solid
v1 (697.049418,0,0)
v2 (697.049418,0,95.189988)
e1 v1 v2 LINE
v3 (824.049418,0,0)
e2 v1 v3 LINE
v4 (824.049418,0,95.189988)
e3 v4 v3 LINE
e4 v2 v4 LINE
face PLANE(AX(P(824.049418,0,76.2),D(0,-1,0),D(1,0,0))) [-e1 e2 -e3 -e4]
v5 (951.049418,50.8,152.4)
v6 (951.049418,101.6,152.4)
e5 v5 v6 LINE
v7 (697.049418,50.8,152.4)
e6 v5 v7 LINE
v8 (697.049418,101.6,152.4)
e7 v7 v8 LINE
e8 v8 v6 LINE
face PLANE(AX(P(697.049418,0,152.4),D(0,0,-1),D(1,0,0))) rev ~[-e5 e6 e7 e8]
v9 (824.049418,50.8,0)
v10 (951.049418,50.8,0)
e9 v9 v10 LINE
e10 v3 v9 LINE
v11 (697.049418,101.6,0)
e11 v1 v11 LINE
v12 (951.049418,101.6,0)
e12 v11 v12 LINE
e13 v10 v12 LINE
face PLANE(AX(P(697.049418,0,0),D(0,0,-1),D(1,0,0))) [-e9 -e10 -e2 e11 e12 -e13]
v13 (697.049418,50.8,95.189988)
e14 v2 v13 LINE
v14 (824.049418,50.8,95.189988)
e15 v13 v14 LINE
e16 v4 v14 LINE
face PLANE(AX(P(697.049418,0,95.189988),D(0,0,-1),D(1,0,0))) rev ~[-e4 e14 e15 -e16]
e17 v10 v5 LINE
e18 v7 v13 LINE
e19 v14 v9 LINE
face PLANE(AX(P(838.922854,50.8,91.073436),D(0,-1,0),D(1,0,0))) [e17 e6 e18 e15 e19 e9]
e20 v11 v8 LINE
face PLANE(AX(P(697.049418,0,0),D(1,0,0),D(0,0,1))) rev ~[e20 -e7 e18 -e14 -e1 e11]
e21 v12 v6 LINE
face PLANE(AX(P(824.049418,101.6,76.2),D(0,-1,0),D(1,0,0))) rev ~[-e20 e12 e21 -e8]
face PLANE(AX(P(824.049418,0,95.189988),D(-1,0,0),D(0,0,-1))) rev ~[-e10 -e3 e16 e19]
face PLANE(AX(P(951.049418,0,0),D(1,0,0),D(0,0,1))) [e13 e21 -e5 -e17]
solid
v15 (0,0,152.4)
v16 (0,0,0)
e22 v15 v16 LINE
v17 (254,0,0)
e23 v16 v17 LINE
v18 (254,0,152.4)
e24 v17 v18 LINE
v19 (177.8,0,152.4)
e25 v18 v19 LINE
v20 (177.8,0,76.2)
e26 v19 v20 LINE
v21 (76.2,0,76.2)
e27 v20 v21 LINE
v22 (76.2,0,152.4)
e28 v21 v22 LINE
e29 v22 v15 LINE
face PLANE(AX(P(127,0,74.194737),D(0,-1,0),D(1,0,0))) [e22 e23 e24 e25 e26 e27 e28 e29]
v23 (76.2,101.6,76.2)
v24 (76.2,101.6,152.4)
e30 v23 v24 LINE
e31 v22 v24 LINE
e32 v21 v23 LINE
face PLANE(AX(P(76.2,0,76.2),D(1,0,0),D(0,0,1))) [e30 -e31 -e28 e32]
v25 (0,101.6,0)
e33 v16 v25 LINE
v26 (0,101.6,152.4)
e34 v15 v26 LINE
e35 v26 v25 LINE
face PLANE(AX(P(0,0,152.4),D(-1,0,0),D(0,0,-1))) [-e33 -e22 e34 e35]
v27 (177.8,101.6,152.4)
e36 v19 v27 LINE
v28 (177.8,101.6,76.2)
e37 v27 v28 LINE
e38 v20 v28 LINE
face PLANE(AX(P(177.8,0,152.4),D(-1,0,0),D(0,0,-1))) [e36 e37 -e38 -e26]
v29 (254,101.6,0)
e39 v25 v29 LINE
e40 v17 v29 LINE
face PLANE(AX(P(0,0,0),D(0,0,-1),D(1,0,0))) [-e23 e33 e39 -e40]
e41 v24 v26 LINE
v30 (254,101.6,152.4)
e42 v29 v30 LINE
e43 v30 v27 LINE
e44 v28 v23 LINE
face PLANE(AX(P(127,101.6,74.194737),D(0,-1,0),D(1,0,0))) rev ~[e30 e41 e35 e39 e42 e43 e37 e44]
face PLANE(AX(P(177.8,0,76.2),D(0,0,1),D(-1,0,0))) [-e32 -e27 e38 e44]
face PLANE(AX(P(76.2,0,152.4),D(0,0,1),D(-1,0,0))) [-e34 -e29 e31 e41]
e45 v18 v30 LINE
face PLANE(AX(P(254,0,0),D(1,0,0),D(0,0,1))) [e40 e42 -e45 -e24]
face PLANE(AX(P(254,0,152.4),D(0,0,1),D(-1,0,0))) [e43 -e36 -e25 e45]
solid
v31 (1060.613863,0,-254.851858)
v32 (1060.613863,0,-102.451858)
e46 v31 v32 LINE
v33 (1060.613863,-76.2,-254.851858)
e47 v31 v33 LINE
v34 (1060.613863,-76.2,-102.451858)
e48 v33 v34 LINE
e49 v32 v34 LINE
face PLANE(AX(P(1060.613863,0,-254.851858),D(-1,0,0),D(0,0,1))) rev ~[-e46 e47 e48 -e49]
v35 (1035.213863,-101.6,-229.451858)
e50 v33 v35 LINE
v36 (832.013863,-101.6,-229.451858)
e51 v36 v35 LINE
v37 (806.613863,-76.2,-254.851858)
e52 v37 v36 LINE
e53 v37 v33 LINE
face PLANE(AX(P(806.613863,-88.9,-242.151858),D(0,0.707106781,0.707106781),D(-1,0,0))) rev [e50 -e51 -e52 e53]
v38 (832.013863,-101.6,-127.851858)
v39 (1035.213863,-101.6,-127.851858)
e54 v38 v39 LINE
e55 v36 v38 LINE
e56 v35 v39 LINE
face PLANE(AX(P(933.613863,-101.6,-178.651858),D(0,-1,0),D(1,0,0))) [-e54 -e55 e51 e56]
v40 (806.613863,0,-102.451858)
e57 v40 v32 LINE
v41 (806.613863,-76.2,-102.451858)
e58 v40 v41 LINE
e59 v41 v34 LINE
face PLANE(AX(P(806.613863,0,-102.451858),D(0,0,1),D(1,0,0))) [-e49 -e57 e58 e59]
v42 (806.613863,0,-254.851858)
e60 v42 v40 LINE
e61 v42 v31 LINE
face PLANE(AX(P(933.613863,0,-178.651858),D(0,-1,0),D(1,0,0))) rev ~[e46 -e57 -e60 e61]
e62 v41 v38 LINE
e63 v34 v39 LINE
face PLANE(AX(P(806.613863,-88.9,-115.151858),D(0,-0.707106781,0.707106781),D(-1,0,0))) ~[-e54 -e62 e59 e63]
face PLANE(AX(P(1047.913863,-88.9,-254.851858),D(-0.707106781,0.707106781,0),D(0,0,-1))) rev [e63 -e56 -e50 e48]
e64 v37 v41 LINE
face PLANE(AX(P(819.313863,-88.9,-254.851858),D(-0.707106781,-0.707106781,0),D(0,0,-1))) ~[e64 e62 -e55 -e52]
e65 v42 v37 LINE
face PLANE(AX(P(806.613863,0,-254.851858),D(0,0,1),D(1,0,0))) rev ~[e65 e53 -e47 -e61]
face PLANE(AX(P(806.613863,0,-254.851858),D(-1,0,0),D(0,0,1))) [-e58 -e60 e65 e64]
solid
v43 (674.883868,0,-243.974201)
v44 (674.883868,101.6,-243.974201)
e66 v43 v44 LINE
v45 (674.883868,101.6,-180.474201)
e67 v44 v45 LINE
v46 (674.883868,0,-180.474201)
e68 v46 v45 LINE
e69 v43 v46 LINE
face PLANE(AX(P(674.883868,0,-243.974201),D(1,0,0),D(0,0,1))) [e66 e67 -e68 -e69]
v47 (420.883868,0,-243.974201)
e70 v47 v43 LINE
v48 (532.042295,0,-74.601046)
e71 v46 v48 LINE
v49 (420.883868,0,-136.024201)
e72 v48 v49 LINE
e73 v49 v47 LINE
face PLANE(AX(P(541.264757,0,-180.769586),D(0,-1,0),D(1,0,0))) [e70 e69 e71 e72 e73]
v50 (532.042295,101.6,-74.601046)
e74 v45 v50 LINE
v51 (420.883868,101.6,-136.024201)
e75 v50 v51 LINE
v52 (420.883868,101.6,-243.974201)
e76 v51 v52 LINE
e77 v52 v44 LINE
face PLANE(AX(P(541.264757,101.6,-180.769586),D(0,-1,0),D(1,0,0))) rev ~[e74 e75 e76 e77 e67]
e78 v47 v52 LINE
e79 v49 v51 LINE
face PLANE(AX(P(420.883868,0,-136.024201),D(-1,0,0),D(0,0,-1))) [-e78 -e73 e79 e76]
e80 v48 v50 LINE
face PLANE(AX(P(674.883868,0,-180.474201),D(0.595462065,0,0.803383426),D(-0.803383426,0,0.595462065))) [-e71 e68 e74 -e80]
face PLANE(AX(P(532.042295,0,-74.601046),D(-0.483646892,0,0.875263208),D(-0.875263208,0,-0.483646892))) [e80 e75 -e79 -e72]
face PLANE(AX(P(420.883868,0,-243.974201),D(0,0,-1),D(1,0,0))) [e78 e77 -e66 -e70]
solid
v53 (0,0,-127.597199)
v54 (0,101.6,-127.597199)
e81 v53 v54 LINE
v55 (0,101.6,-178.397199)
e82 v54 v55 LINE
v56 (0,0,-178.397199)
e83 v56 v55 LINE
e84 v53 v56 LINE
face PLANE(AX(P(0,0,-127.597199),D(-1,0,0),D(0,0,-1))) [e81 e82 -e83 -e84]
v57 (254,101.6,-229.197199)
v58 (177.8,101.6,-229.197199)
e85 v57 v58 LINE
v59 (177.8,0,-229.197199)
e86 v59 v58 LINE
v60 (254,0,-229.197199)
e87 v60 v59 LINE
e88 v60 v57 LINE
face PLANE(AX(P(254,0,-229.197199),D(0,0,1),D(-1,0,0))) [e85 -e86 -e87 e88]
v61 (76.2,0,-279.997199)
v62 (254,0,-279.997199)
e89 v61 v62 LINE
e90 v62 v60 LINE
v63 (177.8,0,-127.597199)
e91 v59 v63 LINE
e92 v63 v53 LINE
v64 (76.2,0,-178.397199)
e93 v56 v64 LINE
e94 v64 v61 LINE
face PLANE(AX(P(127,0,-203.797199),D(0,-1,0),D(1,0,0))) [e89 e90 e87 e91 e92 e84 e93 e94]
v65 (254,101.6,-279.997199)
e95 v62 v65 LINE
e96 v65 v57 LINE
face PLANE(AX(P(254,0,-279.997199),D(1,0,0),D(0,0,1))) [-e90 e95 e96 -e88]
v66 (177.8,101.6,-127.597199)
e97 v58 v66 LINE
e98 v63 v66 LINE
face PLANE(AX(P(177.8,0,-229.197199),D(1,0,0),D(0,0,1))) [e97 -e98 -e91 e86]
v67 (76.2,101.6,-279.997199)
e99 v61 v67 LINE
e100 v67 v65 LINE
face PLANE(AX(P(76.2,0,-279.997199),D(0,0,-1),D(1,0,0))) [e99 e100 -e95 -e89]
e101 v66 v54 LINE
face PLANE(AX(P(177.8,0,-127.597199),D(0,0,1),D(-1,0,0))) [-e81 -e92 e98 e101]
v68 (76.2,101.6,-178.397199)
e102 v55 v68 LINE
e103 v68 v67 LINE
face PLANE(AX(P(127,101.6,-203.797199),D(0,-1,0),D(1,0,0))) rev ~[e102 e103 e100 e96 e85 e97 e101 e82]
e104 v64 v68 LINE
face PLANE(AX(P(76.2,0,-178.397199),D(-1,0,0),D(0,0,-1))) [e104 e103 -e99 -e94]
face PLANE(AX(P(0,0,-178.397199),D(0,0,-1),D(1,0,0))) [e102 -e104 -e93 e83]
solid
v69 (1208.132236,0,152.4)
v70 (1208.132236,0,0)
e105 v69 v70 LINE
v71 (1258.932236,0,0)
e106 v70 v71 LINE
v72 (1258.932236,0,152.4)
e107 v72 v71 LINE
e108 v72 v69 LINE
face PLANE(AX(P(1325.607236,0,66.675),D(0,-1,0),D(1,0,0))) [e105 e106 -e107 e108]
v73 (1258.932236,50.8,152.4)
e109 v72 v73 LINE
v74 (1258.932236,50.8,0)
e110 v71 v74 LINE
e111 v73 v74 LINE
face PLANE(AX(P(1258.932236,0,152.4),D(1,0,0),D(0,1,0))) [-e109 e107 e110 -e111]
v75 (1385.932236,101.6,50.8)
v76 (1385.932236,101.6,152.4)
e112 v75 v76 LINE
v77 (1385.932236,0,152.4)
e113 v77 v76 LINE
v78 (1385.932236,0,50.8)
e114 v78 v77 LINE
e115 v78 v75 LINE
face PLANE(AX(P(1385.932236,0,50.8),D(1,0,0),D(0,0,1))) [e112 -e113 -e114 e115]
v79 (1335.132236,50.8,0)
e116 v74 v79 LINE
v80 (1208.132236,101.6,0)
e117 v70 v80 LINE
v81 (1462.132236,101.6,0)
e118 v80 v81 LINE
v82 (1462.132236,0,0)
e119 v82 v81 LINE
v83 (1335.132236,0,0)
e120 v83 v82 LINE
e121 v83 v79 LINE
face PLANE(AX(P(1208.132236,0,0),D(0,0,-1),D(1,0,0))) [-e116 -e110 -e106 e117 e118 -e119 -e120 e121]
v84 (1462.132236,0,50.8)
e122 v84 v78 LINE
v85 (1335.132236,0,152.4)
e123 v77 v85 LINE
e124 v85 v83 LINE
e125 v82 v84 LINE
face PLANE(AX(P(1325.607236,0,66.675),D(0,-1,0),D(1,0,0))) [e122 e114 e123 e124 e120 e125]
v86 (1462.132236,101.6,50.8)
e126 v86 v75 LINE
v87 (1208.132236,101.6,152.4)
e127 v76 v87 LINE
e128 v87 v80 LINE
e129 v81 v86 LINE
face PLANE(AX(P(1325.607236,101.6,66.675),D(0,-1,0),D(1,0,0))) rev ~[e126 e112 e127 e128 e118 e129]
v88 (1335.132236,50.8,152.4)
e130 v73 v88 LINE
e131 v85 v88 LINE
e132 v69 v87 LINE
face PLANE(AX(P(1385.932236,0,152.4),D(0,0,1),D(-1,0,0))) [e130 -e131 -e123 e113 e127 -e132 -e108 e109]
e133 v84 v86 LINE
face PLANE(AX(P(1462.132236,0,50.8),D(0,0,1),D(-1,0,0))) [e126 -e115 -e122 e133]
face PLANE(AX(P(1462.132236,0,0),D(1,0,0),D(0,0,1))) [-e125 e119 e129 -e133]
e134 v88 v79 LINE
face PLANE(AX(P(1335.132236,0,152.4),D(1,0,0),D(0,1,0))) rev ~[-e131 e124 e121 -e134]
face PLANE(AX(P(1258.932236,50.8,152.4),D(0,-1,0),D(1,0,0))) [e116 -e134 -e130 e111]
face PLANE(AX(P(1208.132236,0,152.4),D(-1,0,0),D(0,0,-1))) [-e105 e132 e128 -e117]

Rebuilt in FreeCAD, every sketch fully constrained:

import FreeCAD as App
import Part
import Sketcher
from FreeCAD import Vector
Q = App.Units.Quantity


def edges_at(feature, points):
    """Names of the edges that pass closest to the given points."""
    edges = feature.Shape.Edges
    near = lambda p: min(range(len(edges)), key=lambda i: edges[i].distToShape(Part.Vertex(*p))[0])
    return sorted({f"Edge{near(p) + 1}" for p in points})


def add_polygon(sketch, points):
    """Adds a closed chain of lines whose ends are joined by coincident constraints."""
    first, n = sketch.GeometryCount, len(points)
    for a, b in zip(points, points[1:] + points[:1]):
        sketch.addGeometry(Part.LineSegment(App.Vector(*a, 0), App.Vector(*b, 0)), False)
    for i in range(n):
        sketch.addConstraint(Sketcher.Constraint("Coincident", first + i, 2, first + (i + 1) % n, 1))

doc = App.newDocument("Part")
body = doc.addObject("PartDesign::Body", "Body")

# Sketch on XZ plane
sketch1 = body.newObject("Sketcher::SketchObject", "Sketch")
sketch1.AttachmentSupport = (doc.getObject("XZ_Plane"), [""])
sketch1.MapMode = "FlatFace"
add_polygon(sketch1, [(0, 152), (0, 0), (254, 0), (254, 152), (178, 152), (178, 76), (76, 76), (76, 152)])  # lines 0-7
sketch1.addConstraint([
    Sketcher.Constraint("Vertical", 0),
    Sketcher.Constraint("Horizontal", 1),
    Sketcher.Constraint("Vertical", 2),
    Sketcher.Constraint("Horizontal", 3),
    Sketcher.Constraint("Vertical", 4),
    Sketcher.Constraint("Horizontal", 5),
    Sketcher.Constraint("Vertical", 6),
    Sketcher.Constraint("Horizontal", 7),
    Sketcher.Constraint("Coincident", 0, 2, -1, 1),
    Sketcher.Constraint("Horizontal", 3, 2, 6, 2),
    Sketcher.Constraint("Equal", 3, 7),
    Sketcher.Constraint("Equal", 7, 4),
    Sketcher.Constraint("DistanceX", 1, 1, 1, 2, Q("10 in")),
    Sketcher.Constraint("DistanceX", 3, 2, 3, 1, Q("3 in")),
    Sketcher.Constraint("DistanceY", 0, 2, 0, 1, Q("6 in")),
])
pad1 = body.newObject("PartDesign::Pad", "Pad")
pad1.Profile = sketch1
pad1.Length = Q("4 in")
pad1.Reversed = True
body2 = doc.addObject("PartDesign::Body", "Body001")

# Sketch on XZ plane
sketch2 = body2.newObject("Sketcher::SketchObject", "Sketch001")
sketch2.AttachmentSupport = (doc.getObject("XZ_Plane001"), [""])
sketch2.MapMode = "FlatFace"
add_polygon(sketch2, [(697, 152), (697, 0), (951, 0), (951, 152)])  # lines 0-3
sketch2.addConstraint([
    Sketcher.Constraint("Vertical", 0),
    Sketcher.Constraint("Horizontal", 1),
    Sketcher.Constraint("Vertical", 2),
    Sketcher.Constraint("Horizontal", 3),
    Sketcher.Constraint("PointOnObject", 0, 2, -1),
    Sketcher.Constraint("DistanceX", 1, 1, 1, 2, Q("10 in")),
    Sketcher.Constraint("DistanceY", 0, 2, 0, 1, Q("6 in")),
    Sketcher.Constraint("DistanceX", -1, 1, 0, 2, 697.049418),
])
pad2 = body2.newObject("PartDesign::Pad", "Pad001")
pad2.Profile = sketch2
pad2.Length = Q("4 in")
pad2.Reversed = True

# Sketch on XZ plane
sketch3 = body2.newObject("Sketcher::SketchObject", "Sketch002")
sketch3.AttachmentSupport = (doc.getObject("XZ_Plane001"), [""])
sketch3.MapMode = "FlatFace"
add_polygon(sketch3, [(824, 0), (951, 0), (951, 152), (697, 152), (697, 95), (824, 95)])  # lines 0-5
sketch3.addConstraint([
    Sketcher.Constraint("Horizontal", 0),
    Sketcher.Constraint("Vertical", 1),
    Sketcher.Constraint("Horizontal", 2),
    Sketcher.Constraint("Vertical", 3),
    Sketcher.Constraint("Horizontal", 4),
    Sketcher.Constraint("Vertical", 5),
    Sketcher.Constraint("PointOnObject", 0, 2, -1),
    Sketcher.Constraint("Equal", 0, 4),
    Sketcher.Constraint("DistanceX", 0, 1, 0, 2, Q("5 in")),
    Sketcher.Constraint("DistanceY", 1, 1, 1, 2, Q("6 in")),
    Sketcher.Constraint("DistanceY", 5, 2, 5, 1, 95.189988),
    Sketcher.Constraint("DistanceX", -1, 1, 0, 2, 951.049418),
])
pocket1 = body2.newObject("PartDesign::Pocket", "Pocket")
pocket1.Profile = sketch3
pocket1.Length = Q("2 in")
body3 = doc.addObject("PartDesign::Body", "Body002")

# Sketch on XZ plane
sketch4 = body3.newObject("Sketcher::SketchObject", "Sketch003")
sketch4.AttachmentSupport = (doc.getObject("XZ_Plane002"), [""])
sketch4.MapMode = "FlatFace"
add_polygon(sketch4, [(1208, 152), (1208, 0), (1462, 0), (1462, 51), (1386, 51), (1386, 152)])  # lines 0-5
sketch4.addConstraint([
    Sketcher.Constraint("Vertical", 0),
    Sketcher.Constraint("Horizontal", 1),
    Sketcher.Constraint("Vertical", 2),
    Sketcher.Constraint("Horizontal", 3),
    Sketcher.Constraint("Vertical", 4),
    Sketcher.Constraint("Horizontal", 5),
    Sketcher.Constraint("PointOnObject", 0, 2, -1),
    Sketcher.Constraint("DistanceX", 1, 1, 1, 2, Q("10 in")),
    Sketcher.Constraint("DistanceX", 3, 2, 3, 1, Q("3 in")),
    Sketcher.Constraint("DistanceY", 0, 2, 0, 1, Q("6 in")),
    Sketcher.Constraint("DistanceY", 2, 1, 2, 2, Q("2 in")),
    Sketcher.Constraint("DistanceX", -1, 1, 0, 2, 1208.132236),
])
pad3 = body3.newObject("PartDesign::Pad", "Pad002")
pad3.Profile = sketch4
pad3.Length = Q("4 in")
pad3.Reversed = True

# Sketch on XY plane
sketch5 = body3.newObject("Sketcher::SketchObject", "Sketch004")
sketch5.AttachmentSupport = (doc.getObject("XY_Plane002"), [""])
sketch5.MapMode = "FlatFace"
sketch5.AttachmentOffset = App.Placement(Vector(0, 0, 6 * 25.4), App.Rotation())
add_polygon(sketch5, [(1259, 51), (1259, 0), (1335, 0), (1335, 51)])  # lines 0-3
sketch5.addConstraint([
    Sketcher.Constraint("Vertical", 0),
    Sketcher.Constraint("Horizontal", 1),
    Sketcher.Constraint("Vertical", 2),
    Sketcher.Constraint("Horizontal", 3),
    Sketcher.Constraint("PointOnObject", 0, 2, -1),
    Sketcher.Constraint("DistanceX", 1, 1, 1, 2, Q("3 in")),
    Sketcher.Constraint("DistanceY", 0, 2, 0, 1, Q("2 in")),
    Sketcher.Constraint("DistanceX", -1, 1, 0, 2, 1258.932236),
])
pocket2 = body3.newObject("PartDesign::Pocket", "Pocket001")
pocket2.Profile = sketch5
pocket2.Length = Q("6 in")
body4 = doc.addObject("PartDesign::Body", "Body003")

# Sketch on XZ plane
sketch6 = body4.newObject("Sketcher::SketchObject", "Sketch005")
sketch6.AttachmentSupport = (doc.getObject("XZ_Plane003"), [""])
sketch6.MapMode = "FlatFace"
add_polygon(sketch6, [(0, -128), (0, -178), (76, -178), (76, -280), (254, -280), (254, -229), (178, -229), (178, -128)])  # lines 0-7
sketch6.addConstraint([
    Sketcher.Constraint("Vertical", 0),
    Sketcher.Constraint("Horizontal", 1),
    Sketcher.Constraint("Vertical", 2),
    Sketcher.Constraint("Horizontal", 3),
    Sketcher.Constraint("Vertical", 4),
    Sketcher.Constraint("Horizontal", 5),
    Sketcher.Constraint("Vertical", 6),
    Sketcher.Constraint("Horizontal", 7),
    Sketcher.Constraint("PointOnObject", 0, 2, -2),
    Sketcher.Constraint("Equal", 1, 5),
    Sketcher.Constraint("Equal", 0, 4),
    Sketcher.Constraint("DistanceX", 1, 1, 1, 2, Q("3 in")),
    Sketcher.Constraint("DistanceX", 3, 1, 3, 2, Q("7 in")),
    Sketcher.Constraint("DistanceY", 0, 2, 0, 1, Q("2 in")),
    Sketcher.Constraint("DistanceY", 2, 2, 2, 1, Q("4 in")),
    Sketcher.Constraint("DistanceY", 0, 2, -1, 1, 178.397199),
])
pad4 = body4.newObject("PartDesign::Pad", "Pad003")
pad4.Profile = sketch6
pad4.Length = Q("4 in")
pad4.Reversed = True
body5 = doc.addObject("PartDesign::Body", "Body004")

# Sketch on XZ plane
sketch7 = body5.newObject("Sketcher::SketchObject", "Sketch006")
sketch7.AttachmentSupport = (doc.getObject("XZ_Plane004"), [""])
sketch7.MapMode = "FlatFace"
add_polygon(sketch7, [(421, -136), (421, -244), (675, -244), (675, -180), (532, -75)])  # lines 0-4
sketch7.addConstraint([
    Sketcher.Constraint("Vertical", 0),
    Sketcher.Constraint("Horizontal", 1),
    Sketcher.Constraint("Vertical", 2),
    Sketcher.Constraint("DistanceX", 1, 1, 1, 2, Q("10 in")),
    Sketcher.Constraint("Distance", 3, Q("7 in")),
    Sketcher.Constraint("Distance", 4, Q("5 in")),
    Sketcher.Constraint("DistanceY", 2, 1, 2, 2, Q("2.5 in")),
    Sketcher.Constraint("DistanceY", 0, 2, 0, 1, Q("4.25 in")),
    Sketcher.Constraint("DistanceY", 0, 2, -1, 1, 243.974201),
    Sketcher.Constraint("DistanceX", -1, 1, 0, 2, 420.883868),
])
pad5 = body5.newObject("PartDesign::Pad", "Pad004")
pad5.Profile = sketch7
pad5.Length = Q("4 in")
pad5.Reversed = True
body6 = doc.addObject("PartDesign::Body", "Body005")

# Sketch on XZ plane
sketch8 = body6.newObject("Sketcher::SketchObject", "Sketch007")
sketch8.AttachmentSupport = (doc.getObject("XZ_Plane005"), [""])
sketch8.MapMode = "FlatFace"
add_polygon(sketch8, [(807, -102), (807, -255), (1061, -255), (1061, -102)])  # lines 0-3
sketch8.addConstraint([
    Sketcher.Constraint("Vertical", 0),
    Sketcher.Constraint("Horizontal", 1),
    Sketcher.Constraint("Vertical", 2),
    Sketcher.Constraint("Horizontal", 3),
    Sketcher.Constraint("DistanceX", 1, 1, 1, 2, Q("10 in")),
    Sketcher.Constraint("DistanceY", 0, 2, 0, 1, Q("6 in")),
    Sketcher.Constraint("DistanceY", 0, 2, -1, 1, 254.851858),
    Sketcher.Constraint("DistanceX", -1, 1, 0, 2, 806.613863),
])
pad6 = body6.newObject("PartDesign::Pad", "Pad005")
pad6.Profile = sketch8
pad6.Length = Q("4 in")
doc.recompute()

chamfer = body6.newObject("PartDesign::Chamfer", "Chamfer")
chamfer.Base = (pad6, edges_at(pad6, [
    (806.614, -101.6, -178.652),
    (933.614, -101.6, -254.852),
    (1060.614, -101.6, -178.652),
    (933.614, -101.6, -102.452),
]))
chamfer.Size = Q("1 in")

doc.recompute()
